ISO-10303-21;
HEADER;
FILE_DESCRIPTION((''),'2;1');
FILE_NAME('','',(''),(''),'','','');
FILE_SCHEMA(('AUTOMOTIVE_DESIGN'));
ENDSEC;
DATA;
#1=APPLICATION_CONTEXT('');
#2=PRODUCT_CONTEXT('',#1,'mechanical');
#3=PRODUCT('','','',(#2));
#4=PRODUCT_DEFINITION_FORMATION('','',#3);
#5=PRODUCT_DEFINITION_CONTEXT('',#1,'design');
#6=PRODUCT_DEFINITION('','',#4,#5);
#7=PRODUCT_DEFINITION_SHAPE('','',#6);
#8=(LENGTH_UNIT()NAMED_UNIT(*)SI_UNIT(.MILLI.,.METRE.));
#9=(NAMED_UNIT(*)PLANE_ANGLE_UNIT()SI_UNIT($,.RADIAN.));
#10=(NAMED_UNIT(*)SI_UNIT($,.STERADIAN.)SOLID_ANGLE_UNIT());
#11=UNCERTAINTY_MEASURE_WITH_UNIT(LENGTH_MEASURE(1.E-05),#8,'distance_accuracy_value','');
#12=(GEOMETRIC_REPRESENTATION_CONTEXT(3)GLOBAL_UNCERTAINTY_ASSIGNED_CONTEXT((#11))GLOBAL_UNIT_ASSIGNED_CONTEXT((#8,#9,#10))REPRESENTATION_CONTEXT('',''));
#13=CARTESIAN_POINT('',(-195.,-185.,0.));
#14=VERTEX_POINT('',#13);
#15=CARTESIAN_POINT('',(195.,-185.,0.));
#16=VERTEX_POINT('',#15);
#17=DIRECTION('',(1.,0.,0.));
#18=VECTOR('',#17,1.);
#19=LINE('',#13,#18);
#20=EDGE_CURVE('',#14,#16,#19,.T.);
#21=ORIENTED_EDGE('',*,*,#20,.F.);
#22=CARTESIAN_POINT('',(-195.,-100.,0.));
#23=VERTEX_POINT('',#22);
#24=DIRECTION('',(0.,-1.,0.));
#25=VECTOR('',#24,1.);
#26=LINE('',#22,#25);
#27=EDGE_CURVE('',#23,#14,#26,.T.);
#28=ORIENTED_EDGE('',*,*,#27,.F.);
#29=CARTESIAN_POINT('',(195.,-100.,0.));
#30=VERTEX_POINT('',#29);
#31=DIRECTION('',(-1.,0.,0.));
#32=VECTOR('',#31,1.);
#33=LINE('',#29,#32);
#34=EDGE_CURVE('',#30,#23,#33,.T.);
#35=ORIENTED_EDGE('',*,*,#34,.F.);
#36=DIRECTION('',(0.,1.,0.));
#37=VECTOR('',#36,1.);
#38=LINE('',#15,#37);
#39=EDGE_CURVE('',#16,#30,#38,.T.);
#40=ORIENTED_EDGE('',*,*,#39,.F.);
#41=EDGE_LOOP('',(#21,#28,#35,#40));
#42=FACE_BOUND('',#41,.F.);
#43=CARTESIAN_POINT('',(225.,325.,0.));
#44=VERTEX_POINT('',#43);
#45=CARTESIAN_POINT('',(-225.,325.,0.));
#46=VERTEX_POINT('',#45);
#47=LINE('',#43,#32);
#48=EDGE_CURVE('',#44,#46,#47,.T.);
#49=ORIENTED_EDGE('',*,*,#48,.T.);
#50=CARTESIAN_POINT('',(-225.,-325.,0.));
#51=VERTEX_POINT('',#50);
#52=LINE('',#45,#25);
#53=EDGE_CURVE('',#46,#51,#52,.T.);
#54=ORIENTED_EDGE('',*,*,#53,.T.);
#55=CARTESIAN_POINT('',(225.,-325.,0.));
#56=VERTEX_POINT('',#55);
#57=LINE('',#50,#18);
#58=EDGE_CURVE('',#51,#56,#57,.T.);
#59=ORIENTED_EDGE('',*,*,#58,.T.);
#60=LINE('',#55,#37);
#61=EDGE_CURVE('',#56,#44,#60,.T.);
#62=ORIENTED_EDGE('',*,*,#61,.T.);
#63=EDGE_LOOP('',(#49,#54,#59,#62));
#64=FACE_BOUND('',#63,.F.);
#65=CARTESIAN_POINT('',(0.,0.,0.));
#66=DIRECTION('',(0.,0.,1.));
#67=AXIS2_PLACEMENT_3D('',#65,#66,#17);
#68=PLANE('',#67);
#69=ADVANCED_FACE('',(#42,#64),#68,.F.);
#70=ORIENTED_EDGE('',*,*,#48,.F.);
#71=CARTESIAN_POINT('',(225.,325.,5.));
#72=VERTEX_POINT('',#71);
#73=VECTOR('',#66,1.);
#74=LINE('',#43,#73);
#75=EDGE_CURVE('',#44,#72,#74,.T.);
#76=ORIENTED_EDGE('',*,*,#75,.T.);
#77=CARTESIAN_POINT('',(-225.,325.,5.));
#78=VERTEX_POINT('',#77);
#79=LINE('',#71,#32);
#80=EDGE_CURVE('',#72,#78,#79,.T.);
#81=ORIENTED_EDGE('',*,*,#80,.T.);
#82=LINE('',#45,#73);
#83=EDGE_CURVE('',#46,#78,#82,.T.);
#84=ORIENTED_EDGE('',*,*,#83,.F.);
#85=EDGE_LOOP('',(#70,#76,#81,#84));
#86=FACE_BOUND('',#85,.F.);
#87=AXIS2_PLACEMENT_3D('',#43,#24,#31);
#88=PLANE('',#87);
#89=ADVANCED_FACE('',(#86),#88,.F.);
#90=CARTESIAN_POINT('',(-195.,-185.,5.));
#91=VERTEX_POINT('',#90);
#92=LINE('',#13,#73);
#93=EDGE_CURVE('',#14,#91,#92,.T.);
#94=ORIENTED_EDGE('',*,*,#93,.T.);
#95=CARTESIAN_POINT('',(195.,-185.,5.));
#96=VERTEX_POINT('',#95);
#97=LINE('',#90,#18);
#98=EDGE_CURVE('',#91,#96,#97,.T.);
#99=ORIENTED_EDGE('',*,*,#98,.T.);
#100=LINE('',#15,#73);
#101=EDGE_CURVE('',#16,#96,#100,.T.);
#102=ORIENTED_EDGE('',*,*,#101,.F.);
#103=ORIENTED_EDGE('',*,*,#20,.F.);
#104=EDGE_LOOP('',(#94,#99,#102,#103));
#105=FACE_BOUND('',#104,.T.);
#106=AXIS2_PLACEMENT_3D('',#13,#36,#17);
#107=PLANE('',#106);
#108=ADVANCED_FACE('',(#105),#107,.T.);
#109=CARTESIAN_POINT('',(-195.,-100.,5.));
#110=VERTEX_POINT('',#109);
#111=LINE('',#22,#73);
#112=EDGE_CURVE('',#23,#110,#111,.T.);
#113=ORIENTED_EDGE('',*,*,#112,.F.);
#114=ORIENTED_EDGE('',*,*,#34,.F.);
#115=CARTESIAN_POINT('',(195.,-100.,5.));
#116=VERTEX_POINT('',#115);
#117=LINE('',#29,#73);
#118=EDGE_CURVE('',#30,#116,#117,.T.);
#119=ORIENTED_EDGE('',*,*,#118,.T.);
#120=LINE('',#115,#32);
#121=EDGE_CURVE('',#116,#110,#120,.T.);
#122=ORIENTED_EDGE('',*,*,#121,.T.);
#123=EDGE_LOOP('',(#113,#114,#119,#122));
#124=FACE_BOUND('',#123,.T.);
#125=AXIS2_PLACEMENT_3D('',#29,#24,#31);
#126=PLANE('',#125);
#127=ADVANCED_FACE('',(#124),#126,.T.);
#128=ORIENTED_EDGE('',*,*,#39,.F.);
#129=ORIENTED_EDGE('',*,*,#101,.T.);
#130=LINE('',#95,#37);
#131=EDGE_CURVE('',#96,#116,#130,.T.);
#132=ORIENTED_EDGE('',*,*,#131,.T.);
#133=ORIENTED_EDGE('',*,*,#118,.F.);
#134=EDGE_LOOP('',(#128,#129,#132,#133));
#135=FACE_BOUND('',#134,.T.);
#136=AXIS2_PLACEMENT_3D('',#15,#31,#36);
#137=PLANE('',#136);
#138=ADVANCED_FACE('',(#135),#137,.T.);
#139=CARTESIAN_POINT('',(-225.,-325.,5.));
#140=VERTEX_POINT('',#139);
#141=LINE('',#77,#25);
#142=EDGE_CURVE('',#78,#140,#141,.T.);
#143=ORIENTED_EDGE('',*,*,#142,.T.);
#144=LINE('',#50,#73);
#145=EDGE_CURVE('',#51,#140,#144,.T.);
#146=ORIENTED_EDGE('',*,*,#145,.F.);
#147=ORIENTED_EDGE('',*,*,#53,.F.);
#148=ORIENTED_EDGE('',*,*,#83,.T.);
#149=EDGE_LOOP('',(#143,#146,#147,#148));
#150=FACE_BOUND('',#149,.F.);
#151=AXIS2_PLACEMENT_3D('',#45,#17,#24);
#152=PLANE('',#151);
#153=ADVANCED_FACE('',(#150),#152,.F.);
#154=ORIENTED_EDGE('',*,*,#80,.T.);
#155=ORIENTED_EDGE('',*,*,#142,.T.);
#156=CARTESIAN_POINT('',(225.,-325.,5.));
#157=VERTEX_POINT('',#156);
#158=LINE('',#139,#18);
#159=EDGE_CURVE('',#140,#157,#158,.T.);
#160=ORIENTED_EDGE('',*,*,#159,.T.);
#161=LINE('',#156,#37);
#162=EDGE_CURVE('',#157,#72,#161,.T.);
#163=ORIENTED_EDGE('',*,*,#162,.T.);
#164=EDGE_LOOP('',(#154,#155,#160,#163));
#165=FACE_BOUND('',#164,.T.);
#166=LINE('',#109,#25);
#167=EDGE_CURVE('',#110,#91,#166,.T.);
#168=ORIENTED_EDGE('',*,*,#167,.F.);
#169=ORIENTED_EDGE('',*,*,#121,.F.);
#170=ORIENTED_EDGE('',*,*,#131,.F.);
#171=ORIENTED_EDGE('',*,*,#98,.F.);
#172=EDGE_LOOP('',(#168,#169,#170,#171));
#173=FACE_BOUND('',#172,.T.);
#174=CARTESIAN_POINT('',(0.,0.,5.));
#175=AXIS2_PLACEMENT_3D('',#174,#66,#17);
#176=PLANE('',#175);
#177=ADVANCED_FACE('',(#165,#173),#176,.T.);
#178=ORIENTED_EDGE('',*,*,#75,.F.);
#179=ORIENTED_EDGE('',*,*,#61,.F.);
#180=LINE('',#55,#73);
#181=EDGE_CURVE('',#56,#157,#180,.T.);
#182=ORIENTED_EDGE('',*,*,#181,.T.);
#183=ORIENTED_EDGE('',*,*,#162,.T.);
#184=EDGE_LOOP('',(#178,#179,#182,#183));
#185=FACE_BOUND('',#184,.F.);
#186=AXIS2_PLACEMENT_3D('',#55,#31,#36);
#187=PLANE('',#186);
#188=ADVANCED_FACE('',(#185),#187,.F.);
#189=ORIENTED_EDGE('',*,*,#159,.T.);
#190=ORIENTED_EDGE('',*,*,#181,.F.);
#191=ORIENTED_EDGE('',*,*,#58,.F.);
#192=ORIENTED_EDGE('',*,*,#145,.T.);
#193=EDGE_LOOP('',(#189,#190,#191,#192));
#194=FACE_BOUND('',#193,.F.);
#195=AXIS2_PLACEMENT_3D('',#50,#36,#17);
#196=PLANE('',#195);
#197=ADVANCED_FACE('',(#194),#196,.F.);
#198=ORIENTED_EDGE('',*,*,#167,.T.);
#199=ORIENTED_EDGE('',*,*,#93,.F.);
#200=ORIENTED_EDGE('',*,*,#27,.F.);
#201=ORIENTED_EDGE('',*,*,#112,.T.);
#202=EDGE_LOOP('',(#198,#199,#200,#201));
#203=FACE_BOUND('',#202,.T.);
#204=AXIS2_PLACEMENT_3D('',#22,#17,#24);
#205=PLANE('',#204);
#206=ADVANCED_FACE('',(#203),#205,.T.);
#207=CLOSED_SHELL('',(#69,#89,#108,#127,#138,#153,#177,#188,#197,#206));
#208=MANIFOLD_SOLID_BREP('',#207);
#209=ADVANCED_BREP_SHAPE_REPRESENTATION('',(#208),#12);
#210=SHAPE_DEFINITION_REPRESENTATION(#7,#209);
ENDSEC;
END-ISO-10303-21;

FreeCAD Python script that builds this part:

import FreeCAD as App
import Part
import Sketcher

V = App.Vector
Q = App.Units.Quantity

doc = App.newDocument("Part")
body = doc.addObject("PartDesign::Body", "Body")

sketch1 = doc.addObject("Sketcher::SketchObject", "Sketch")
body.addObject(sketch1)
sketch1.AttachmentSupport = (doc.XY_Plane, [""])
sketch1.MapMode = "FlatFace"
sketch1.addGeometry(Part.LineSegment(V(-225, 325, 0), V(-225, -325, 0)), False)
sketch1.addGeometry(Part.LineSegment(V(-225, -325, 0), V(225, -325, 0)), False)
sketch1.addGeometry(Part.LineSegment(V(225, -325, 0), V(225, 325, 0)), False)
sketch1.addGeometry(Part.LineSegment(V(225, 325, 0), V(-225, 325, 0)), False)
sketch1.addGeometry(Part.LineSegment(V(195, -185, 0), V(-195, -185, 0)), False)
sketch1.addGeometry(Part.LineSegment(V(-195, -185, 0), V(-195, -100, 0)), False)
sketch1.addGeometry(Part.LineSegment(V(-195, -100, 0), V(195, -100, 0)), False)
sketch1.addGeometry(Part.LineSegment(V(195, -100, 0), V(195, -185, 0)), False)
sketch1.addConstraint(Sketcher.Constraint("Coincident", 0, 2, 1, 1))
sketch1.addConstraint(Sketcher.Constraint("Coincident", 1, 2, 2, 1))
sketch1.addConstraint(Sketcher.Constraint("Coincident", 2, 2, 3, 1))
sketch1.addConstraint(Sketcher.Constraint("Coincident", 3, 2, 0, 1))
sketch1.addConstraint(Sketcher.Constraint("Coincident", 4, 2, 5, 1))
sketch1.addConstraint(Sketcher.Constraint("Coincident", 5, 2, 6, 1))
sketch1.addConstraint(Sketcher.Constraint("Coincident", 6, 2, 7, 1))
sketch1.addConstraint(Sketcher.Constraint("Coincident", 7, 2, 4, 1))
sketch1.addConstraint(Sketcher.Constraint("Vertical", 0))
sketch1.addConstraint(Sketcher.Constraint("Horizontal", 1))
sketch1.addConstraint(Sketcher.Constraint("Vertical", 2))
sketch1.addConstraint(Sketcher.Constraint("Horizontal", 3))
sketch1.addConstraint(Sketcher.Constraint("Horizontal", 4))
sketch1.addConstraint(Sketcher.Constraint("Vertical", 5))
sketch1.addConstraint(Sketcher.Constraint("Horizontal", 6))
sketch1.addConstraint(Sketcher.Constraint("Vertical", 7))
sketch1.addConstraint(Sketcher.Constraint("Symmetric", 0, 2, 2, 2, -1, 1))
sketch1.addConstraint(Sketcher.Constraint("DistanceX", 1, 1, 1, 2, Q("450 mm")))
sketch1.addConstraint(Sketcher.Constraint("DistanceX", 4, 2, 4, 1, Q("390 mm")))
sketch1.addConstraint(Sketcher.Constraint("DistanceY", 0, 2, 0, 1, Q("650 mm")))
sketch1.addConstraint(Sketcher.Constraint("DistanceY", 0, 2, 4, 2, Q("140 mm")))
sketch1.addConstraint(Sketcher.Constraint("DistanceY", 0, 2, 5, 2, Q("225 mm")))
sketch1.addConstraint(Sketcher.Constraint("DistanceX", 4, 2, -1, 1, Q("195 mm")))
pad1 = doc.addObject("PartDesign::Pad", "Pad")
body.addObject(pad1)
pad1.Profile = sketch1
pad1.Length = 5

doc.recompute()
